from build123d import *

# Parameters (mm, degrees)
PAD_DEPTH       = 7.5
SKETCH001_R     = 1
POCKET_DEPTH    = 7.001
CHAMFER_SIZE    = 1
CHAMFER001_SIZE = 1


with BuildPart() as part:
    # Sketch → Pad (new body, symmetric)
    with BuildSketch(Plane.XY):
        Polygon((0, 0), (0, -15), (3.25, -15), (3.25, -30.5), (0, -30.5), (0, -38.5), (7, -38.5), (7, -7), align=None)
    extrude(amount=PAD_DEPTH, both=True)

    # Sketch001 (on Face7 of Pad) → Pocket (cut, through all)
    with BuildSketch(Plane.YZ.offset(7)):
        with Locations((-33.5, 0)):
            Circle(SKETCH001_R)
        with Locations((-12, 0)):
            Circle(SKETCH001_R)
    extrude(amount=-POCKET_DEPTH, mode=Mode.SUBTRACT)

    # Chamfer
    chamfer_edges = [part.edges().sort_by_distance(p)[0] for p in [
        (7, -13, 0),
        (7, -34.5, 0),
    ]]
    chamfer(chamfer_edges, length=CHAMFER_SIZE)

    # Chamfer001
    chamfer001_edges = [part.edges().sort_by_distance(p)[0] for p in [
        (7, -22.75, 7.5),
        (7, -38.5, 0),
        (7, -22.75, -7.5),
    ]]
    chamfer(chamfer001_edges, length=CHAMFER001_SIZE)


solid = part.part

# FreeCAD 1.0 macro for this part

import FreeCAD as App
import Part
import Sketcher
Q = App.Units.Quantity


def edges_at(feature, points):
    """Names of the edges that pass closest to the given points."""
    edges = feature.Shape.Edges
    near = lambda p: min(range(len(edges)), key=lambda i: edges[i].distToShape(Part.Vertex(*p))[0])
    return sorted({f"Edge{near(p) + 1}" for p in points})

doc = App.newDocument("Part")
body = doc.addObject("PartDesign::Body", "Body")

# Sketch on XY plane
sketch1 = doc.addObject("Sketcher::SketchObject", "Sketch")
body.addObject(sketch1)
sketch1.AttachmentSupport = (doc.XY_Plane, [""])
sketch1.MapMode = "FlatFace"
sketch1.addGeometry([
    Part.LineSegment(App.Vector(0, 0, 0), App.Vector(0, -15, 0)),  # 0
    Part.LineSegment(App.Vector(0, -15, 0), App.Vector(3.2, -15, 0)),  # 1
    Part.LineSegment(App.Vector(3.2, -15, 0), App.Vector(3.2, -30.5, 0)),  # 2
    Part.LineSegment(App.Vector(3.2, -30.5, 0), App.Vector(0, -30.5, 0)),  # 3
    Part.LineSegment(App.Vector(0, -30.5, 0), App.Vector(0, -38.5, 0)),  # 4
    Part.LineSegment(App.Vector(0, -38.5, 0), App.Vector(7, -38.5, 0)),  # 5
    Part.LineSegment(App.Vector(7, -38.5, 0), App.Vector(7, -7, 0)),  # 6
    Part.LineSegment(App.Vector(7, -7, 0), App.Vector(0, 0, 0)),  # 7
], False)
sketch1.addConstraint([
    Sketcher.Constraint("Coincident", 0, 2, 1, 1),
    Sketcher.Constraint("Coincident", 1, 2, 2, 1),
    Sketcher.Constraint("Coincident", 2, 2, 3, 1),
    Sketcher.Constraint("Coincident", 3, 2, 4, 1),
    Sketcher.Constraint("Coincident", 4, 2, 5, 1),
    Sketcher.Constraint("Coincident", 5, 2, 6, 1),
    Sketcher.Constraint("Coincident", 6, 2, 7, 1),
    Sketcher.Constraint("Coincident", 7, 2, 0, 1),
    Sketcher.Constraint("Vertical", 0),
    Sketcher.Constraint("Horizontal", 1),
    Sketcher.Constraint("Vertical", 2),
    Sketcher.Constraint("Horizontal", 3),
    Sketcher.Constraint("Vertical", 4),
    Sketcher.Constraint("Horizontal", 5),
    Sketcher.Constraint("Vertical", 6),
    Sketcher.Constraint("Coincident", 7, 2, -1, 1),
    Sketcher.Constraint("PointOnObject", 3, 2, -2),
    Sketcher.Constraint("DistanceX", 5, 1, 5, 2, Q("7 mm")),
    Sketcher.Constraint("DistanceY", 0, 2, 0, 1, Q("15 mm")),
    Sketcher.Constraint("DistanceY", 4, 2, 4, 1, Q("8 mm")),
    Sketcher.Constraint("Angle", 7, Q("135 deg")),
    Sketcher.Constraint("DistanceY", 2, 2, 2, 1, Q("15.5 mm")),
    Sketcher.Constraint("DistanceX", 1, 1, 1, 2, Q("3.25 mm")),
])
pad1 = doc.addObject("PartDesign::Pad", "Pad")
body.addObject(pad1)
pad1.Profile = sketch1
pad1.Length = 15
pad1.Midplane = True

# Sketch on YZ plane
sketch2 = doc.addObject("Sketcher::SketchObject", "Sketch001")
body.addObject(sketch2)
sketch2.AttachmentSupport = (doc.YZ_Plane, [""])
sketch2.MapMode = "FlatFace"
sketch2.AttachmentOffset = App.Placement(App.Vector(0, 0, 7), App.Rotation())
sketch2.addGeometry([
    Part.Circle(App.Vector(-33.5, 0, 0), App.Vector(0, 0, 1), 1),
    Part.Circle(App.Vector(-12, 0, 0), App.Vector(0, 0, 1), 1),
], False)
sketch2.addConstraint([
    Sketcher.Constraint("Equal", 0, 1),
    Sketcher.Constraint("PointOnObject", 0, 3, -1),
    Sketcher.Constraint("PointOnObject", 1, 3, -1),
    Sketcher.Constraint("Diameter", 0, Q("2 mm")),
    Sketcher.Constraint("DistanceX", 1, 3, -1, 1, Q("12 mm")),
    Sketcher.Constraint("DistanceX", 0, 3, -1, 1, Q("33.5 mm")),
])
pocket1 = doc.addObject("PartDesign::Pocket", "Pocket")
body.addObject(pocket1)
pocket1.Profile = sketch2
pocket1.Type = "ThroughAll"
doc.recompute()

chamfer = doc.addObject("PartDesign::Chamfer", "Chamfer")
body.addObject(chamfer)
chamfer.Base = (pocket1, edges_at(pocket1, [(7, -13, 0), (7, -34.5, 0)]))
chamfer.Size = 1
doc.recompute()

chamfer2 = doc.addObject("PartDesign::Chamfer", "Chamfer001")
body.addObject(chamfer2)
chamfer2.Base = (chamfer, edges_at(chamfer, [(7, -22.75, 7.5), (7, -38.5, 0), (7, -22.75, -7.5)]))
chamfer2.Size = 1

doc.recompute()
